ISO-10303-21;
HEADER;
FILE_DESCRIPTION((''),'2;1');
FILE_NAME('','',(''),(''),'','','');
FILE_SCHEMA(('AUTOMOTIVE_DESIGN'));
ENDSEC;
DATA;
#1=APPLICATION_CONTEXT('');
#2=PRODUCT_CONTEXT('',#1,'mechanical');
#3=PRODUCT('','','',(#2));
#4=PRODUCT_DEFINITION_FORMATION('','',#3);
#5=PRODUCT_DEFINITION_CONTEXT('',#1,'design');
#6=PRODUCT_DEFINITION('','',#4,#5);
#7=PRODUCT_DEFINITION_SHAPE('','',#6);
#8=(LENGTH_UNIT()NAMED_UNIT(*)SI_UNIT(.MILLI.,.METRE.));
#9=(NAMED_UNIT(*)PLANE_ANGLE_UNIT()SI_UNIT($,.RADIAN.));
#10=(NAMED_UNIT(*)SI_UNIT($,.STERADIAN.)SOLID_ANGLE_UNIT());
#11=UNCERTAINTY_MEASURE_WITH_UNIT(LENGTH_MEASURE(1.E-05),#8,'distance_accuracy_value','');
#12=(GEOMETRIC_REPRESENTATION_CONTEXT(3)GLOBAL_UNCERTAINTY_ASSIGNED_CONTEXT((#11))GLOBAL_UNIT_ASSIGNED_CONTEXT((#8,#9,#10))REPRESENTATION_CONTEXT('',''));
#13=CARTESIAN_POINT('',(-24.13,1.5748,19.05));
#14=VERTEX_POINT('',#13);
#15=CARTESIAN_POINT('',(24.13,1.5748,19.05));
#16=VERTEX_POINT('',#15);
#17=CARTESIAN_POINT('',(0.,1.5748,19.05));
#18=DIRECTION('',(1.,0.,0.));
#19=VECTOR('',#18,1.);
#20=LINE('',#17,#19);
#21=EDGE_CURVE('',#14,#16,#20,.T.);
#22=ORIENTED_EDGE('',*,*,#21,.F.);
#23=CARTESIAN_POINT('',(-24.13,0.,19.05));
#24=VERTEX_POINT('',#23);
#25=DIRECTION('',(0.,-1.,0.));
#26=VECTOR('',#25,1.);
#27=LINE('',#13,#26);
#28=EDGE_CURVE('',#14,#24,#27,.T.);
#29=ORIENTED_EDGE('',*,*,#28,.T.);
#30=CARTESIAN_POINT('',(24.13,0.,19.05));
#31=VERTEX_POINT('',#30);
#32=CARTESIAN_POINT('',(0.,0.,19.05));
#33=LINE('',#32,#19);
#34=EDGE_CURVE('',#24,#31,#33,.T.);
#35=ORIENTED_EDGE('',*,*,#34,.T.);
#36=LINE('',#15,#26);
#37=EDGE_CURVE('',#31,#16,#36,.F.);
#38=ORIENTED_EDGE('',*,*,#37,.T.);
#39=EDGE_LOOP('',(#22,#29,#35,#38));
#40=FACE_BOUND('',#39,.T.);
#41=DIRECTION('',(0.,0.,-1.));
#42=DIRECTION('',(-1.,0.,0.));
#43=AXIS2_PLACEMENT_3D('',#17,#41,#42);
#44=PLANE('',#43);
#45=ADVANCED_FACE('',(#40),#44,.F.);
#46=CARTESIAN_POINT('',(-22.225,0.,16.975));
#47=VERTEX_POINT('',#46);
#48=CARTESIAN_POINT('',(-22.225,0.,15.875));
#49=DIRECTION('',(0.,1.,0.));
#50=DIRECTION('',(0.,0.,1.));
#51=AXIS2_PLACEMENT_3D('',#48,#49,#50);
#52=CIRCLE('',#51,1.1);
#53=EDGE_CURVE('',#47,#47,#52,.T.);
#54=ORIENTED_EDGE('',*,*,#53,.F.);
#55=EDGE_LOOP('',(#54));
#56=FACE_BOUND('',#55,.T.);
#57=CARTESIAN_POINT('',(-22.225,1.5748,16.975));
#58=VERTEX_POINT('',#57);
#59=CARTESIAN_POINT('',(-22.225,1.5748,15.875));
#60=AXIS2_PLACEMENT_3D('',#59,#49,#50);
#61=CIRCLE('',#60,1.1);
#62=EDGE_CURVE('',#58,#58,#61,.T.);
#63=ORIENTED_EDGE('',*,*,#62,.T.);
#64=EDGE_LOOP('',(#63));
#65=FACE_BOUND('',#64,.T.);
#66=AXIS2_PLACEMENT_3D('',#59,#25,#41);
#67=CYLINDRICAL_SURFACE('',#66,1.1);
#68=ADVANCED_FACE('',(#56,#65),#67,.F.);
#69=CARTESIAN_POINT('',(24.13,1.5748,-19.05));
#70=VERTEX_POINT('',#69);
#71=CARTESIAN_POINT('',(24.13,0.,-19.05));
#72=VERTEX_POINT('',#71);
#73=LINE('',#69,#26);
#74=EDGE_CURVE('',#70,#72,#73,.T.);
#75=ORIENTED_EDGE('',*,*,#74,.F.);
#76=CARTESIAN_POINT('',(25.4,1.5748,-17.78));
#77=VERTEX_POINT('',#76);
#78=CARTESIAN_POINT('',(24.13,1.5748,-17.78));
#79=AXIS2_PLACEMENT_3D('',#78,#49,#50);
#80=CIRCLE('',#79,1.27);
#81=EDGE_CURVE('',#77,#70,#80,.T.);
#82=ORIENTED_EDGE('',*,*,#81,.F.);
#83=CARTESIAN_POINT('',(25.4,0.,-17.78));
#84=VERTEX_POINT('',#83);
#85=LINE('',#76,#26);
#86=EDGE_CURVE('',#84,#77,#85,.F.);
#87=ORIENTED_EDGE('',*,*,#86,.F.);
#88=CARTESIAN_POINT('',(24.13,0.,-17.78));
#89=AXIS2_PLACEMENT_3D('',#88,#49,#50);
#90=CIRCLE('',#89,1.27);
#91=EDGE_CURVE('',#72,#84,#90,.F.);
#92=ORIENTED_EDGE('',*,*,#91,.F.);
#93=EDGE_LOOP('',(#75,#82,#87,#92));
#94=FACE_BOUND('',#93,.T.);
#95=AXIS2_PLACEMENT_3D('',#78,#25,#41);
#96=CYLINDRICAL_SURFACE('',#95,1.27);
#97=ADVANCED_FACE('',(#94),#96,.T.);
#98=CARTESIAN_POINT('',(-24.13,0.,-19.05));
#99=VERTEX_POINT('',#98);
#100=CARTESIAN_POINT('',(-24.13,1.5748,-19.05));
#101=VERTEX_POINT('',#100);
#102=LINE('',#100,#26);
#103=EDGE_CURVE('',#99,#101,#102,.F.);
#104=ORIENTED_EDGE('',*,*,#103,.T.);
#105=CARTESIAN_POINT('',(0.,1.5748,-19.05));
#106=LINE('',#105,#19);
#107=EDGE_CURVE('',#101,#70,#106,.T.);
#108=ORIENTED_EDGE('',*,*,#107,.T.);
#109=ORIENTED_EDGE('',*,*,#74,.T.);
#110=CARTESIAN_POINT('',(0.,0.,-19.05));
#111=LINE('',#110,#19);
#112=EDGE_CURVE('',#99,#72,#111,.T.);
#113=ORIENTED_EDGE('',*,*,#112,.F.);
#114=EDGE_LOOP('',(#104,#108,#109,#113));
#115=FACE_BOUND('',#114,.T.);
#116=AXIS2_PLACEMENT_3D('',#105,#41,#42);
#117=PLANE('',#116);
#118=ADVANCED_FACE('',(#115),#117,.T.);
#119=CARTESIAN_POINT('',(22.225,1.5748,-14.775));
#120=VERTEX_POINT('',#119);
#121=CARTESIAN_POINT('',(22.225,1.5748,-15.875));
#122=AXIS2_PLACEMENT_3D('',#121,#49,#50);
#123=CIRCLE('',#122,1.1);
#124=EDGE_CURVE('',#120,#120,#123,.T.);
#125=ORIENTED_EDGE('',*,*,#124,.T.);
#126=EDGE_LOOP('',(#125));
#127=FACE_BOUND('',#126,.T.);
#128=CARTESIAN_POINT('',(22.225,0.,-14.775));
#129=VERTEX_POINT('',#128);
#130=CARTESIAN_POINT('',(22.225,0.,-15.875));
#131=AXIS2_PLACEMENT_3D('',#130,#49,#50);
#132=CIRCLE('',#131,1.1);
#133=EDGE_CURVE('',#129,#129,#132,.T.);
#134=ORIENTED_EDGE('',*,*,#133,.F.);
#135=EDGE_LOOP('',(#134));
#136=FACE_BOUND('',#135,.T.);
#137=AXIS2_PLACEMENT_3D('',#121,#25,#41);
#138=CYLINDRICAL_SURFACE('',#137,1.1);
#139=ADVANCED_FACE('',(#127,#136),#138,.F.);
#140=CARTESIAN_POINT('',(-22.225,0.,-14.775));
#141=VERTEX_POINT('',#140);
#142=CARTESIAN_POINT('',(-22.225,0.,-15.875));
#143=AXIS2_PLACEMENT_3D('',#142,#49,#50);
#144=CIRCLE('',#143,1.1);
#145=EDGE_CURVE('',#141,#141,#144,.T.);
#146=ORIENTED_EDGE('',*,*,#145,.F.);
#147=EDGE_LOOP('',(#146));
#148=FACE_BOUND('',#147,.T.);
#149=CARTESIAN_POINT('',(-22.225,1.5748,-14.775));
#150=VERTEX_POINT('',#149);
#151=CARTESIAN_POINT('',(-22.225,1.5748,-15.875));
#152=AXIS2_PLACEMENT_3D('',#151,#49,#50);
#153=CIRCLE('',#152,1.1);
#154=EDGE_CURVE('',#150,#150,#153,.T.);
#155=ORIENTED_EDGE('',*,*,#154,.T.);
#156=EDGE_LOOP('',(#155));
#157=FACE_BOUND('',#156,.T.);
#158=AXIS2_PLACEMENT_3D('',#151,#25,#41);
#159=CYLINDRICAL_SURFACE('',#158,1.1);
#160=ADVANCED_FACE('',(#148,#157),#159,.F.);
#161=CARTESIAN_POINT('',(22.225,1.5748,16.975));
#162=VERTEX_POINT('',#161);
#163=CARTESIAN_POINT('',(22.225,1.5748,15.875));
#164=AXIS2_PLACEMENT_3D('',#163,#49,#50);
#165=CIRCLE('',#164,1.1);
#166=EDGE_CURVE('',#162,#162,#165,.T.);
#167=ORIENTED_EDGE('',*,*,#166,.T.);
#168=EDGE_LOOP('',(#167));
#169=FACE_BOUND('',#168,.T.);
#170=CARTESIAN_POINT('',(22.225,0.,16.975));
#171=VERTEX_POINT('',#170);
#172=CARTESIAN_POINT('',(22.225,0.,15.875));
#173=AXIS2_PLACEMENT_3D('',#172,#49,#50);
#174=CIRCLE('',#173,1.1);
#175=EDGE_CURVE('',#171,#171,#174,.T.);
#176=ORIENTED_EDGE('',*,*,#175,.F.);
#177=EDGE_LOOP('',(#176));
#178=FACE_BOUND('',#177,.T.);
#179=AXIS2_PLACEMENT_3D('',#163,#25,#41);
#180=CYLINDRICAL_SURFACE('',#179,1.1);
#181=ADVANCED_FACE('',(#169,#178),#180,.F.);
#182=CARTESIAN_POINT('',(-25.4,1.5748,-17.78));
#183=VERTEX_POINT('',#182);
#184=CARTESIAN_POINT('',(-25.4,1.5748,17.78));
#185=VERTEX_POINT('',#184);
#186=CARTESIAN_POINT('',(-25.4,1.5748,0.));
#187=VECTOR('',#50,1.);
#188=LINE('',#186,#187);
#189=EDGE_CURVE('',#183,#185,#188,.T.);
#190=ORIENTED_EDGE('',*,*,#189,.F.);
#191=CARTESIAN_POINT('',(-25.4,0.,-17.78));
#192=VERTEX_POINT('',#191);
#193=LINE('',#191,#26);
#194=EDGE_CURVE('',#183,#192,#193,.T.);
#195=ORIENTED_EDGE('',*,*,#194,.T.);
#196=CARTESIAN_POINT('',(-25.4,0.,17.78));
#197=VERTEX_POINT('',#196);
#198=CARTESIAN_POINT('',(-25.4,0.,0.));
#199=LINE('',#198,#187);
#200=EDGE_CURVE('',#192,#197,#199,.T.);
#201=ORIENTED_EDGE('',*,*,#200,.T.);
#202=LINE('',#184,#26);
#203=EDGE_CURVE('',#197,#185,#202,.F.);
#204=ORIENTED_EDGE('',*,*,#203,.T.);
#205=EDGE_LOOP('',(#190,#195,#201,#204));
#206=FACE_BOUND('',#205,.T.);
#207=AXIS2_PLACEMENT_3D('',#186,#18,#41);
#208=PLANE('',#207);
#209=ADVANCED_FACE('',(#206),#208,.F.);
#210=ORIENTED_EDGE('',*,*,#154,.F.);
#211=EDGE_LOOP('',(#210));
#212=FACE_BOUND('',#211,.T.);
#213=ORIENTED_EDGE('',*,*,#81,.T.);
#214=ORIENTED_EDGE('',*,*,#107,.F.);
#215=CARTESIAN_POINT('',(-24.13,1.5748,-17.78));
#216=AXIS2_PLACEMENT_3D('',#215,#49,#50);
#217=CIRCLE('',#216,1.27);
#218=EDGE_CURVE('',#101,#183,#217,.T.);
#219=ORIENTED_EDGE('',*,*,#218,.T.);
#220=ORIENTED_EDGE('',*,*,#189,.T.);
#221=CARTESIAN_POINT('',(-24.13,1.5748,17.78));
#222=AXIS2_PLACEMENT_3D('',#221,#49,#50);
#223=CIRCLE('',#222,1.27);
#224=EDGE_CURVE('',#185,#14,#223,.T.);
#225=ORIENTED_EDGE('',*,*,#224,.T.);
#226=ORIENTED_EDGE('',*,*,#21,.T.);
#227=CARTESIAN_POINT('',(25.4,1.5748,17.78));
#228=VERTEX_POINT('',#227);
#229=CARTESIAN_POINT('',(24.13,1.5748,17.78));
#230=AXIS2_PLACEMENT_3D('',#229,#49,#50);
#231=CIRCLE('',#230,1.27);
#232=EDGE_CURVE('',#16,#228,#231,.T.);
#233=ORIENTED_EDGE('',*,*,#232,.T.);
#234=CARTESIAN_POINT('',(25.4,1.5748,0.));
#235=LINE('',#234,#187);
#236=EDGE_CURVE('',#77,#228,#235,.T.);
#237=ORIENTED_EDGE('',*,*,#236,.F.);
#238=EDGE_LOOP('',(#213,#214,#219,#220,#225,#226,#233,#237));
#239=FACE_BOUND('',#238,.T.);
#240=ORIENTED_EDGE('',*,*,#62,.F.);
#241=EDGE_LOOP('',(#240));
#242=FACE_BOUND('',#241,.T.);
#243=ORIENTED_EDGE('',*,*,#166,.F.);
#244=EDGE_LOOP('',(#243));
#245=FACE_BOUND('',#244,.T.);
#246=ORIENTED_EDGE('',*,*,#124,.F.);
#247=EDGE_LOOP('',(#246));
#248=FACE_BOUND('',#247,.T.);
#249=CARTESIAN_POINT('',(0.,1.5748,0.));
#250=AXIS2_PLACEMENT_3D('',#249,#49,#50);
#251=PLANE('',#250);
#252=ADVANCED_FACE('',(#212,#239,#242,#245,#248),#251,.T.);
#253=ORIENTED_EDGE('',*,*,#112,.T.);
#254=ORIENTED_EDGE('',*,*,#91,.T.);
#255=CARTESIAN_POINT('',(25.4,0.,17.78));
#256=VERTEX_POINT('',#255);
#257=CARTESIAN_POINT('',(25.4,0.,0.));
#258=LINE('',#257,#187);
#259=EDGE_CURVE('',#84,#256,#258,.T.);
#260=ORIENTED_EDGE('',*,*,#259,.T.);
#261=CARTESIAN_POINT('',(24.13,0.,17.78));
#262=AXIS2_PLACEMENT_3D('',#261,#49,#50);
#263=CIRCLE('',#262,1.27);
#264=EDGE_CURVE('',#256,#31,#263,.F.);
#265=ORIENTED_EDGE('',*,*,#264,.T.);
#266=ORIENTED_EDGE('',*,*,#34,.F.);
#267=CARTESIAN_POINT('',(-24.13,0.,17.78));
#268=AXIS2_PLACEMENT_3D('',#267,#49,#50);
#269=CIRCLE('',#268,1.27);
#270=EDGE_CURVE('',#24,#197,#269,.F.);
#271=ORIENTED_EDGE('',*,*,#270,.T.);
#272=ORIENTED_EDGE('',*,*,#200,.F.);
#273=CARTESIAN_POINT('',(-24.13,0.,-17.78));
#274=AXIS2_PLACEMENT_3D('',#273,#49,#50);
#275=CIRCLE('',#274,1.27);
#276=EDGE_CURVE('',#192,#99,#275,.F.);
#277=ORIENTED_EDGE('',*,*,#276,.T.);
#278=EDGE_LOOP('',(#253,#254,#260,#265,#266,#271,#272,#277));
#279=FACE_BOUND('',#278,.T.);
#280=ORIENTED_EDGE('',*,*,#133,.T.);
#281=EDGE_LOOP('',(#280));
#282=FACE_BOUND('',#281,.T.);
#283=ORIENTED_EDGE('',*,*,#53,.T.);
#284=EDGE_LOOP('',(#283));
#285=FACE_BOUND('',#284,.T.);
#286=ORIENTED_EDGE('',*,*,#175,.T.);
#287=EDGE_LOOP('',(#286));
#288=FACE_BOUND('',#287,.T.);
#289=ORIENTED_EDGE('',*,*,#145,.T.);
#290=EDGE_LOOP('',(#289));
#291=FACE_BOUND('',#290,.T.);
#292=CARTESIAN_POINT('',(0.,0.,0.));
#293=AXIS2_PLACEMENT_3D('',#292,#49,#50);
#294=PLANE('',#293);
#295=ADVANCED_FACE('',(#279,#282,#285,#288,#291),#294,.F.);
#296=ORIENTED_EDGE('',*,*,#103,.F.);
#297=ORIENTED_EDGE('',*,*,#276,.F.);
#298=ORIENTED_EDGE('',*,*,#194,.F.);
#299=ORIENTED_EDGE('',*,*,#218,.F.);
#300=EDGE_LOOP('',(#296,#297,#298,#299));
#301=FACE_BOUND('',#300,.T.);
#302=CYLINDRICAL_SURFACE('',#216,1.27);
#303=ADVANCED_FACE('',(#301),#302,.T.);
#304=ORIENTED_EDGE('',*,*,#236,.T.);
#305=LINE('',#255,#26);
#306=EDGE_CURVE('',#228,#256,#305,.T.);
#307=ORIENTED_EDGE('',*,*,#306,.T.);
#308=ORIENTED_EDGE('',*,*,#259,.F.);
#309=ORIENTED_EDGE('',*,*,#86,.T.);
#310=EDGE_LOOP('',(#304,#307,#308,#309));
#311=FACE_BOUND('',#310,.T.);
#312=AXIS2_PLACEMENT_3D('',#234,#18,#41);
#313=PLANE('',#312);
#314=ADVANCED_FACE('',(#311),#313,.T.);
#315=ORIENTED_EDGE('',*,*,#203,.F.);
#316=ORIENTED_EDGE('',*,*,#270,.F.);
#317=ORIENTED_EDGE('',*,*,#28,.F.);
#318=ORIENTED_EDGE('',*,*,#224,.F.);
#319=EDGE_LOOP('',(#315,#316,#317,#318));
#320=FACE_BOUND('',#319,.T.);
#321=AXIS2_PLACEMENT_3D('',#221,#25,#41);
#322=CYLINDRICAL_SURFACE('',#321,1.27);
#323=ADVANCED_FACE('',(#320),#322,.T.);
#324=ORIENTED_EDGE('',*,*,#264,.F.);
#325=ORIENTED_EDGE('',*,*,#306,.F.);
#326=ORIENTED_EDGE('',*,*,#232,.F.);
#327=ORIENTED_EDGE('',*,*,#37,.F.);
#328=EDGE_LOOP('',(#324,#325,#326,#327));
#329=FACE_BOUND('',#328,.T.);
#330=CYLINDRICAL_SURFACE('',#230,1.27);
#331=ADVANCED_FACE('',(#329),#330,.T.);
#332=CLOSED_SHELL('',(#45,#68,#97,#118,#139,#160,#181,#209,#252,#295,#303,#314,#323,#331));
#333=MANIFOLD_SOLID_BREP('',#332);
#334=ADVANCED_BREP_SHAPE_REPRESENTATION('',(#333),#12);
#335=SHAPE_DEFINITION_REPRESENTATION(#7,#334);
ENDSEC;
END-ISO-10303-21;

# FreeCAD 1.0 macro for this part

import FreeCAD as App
import Part
import Sketcher

V = App.Vector
Q = App.Units.Quantity


def edges_at(feature, points):
    """Names of the edges that pass closest to the given points."""
    edges = feature.Shape.Edges
    near = lambda p: min(range(len(edges)), key=lambda i: edges[i].distToShape(Part.Vertex(*p))[0])
    return sorted({f"Edge{near(p) + 1}" for p in points})


def add_polygon(sketch, points):
    """Adds a closed chain of lines whose ends are joined by coincident constraints."""
    first, n = sketch.GeometryCount, len(points)
    for a, b in zip(points, points[1:] + points[:1]):
        sketch.addGeometry(Part.LineSegment(App.Vector(*a, 0), App.Vector(*b, 0)), False)
    for i in range(n):
        sketch.addConstraint(Sketcher.Constraint("Coincident", first + i, 2, first + (i + 1) % n, 1))

doc = App.newDocument("Part")
params = doc.addObject("Spreadsheet::Sheet", "Params")
for row, (alias, value) in enumerate([
    ("sketch1_width", "2 in"),
    ("sketch1_height", "1.5 in"),
    ("pad1_length", "0.062 in"),
    ("fillet_radius", "0.05 in"),
], start=1):
    params.set(f"A{row}", alias)
    params.set(f"B{row}", "=" + value)
    params.setAlias(f"B{row}", alias)

body = doc.addObject("PartDesign::Body", "Body")

sketch1 = body.newObject("Sketcher::SketchObject", "Sketch")
sketch1.AttachmentSupport = (doc.getObject("XZ_Plane"), [""])
sketch1.MapMode = "FlatFace"
add_polygon(sketch1, [(-25.4, -19.1), (-25.4, 19.1), (25.4, 19.1), (25.4, -19.1)])
sketch1.addGeometry(Part.Circle(V(-22.2, 15.9, 0), V(0, 0, 1), 1.1), False)
sketch1.addGeometry(Part.Circle(V(22.2, 15.9, 0), V(0, 0, 1), 1.1), False)
sketch1.addGeometry(Part.Circle(V(-22.2, -15.9, 0), V(0, 0, 1), 1.1), False)
sketch1.addGeometry(Part.Circle(V(22.2, -15.9, 0), V(0, 0, 1), 1.1), False)
sketch1.addConstraint([
    Sketcher.Constraint("Vertical", 0),
    Sketcher.Constraint("Horizontal", 1),
    Sketcher.Constraint("Vertical", 2),
    Sketcher.Constraint("Horizontal", 3),
    Sketcher.Constraint("Equal", 4, 5),
    Sketcher.Constraint("Equal", 5, 6),
    Sketcher.Constraint("Equal", 6, 7),
    Sketcher.Constraint("Symmetric", 5, 3, 6, 3, -1, 1),
    Sketcher.Constraint("Symmetric", 4, 3, 7, 3, -1, 1),
    Sketcher.Constraint("Symmetric", 0, 2, 2, 2, -1, 1),
    Sketcher.Constraint("Symmetric", 4, 3, 5, 3, -2),
    Sketcher.Constraint("DistanceX", 1, 1, 1, 2, Q("2 in")),
    Sketcher.Constraint("DistanceY", 0, 1, 0, 2, Q("1.5 in")),
    Sketcher.Constraint("Diameter", 4, 2.2),
    Sketcher.Constraint("DistanceX", 4, 3, 5, 3, Q("1.75 in")),
    Sketcher.Constraint("DistanceY", 6, 3, 4, 3, Q("1.25 in")),
])
sketch1.setExpression("Constraints[15]", "Params.sketch1_width")
sketch1.setExpression("Constraints[16]", "Params.sketch1_height")
pad1 = body.newObject("PartDesign::Pad", "Pad")
pad1.Profile = sketch1
pad1.setExpression("Length", "Params.pad1_length")
pad1.Reversed = True
doc.recompute()

fillet = body.newObject("PartDesign::Fillet", "Fillet")
fillet.Base = (pad1, edges_at(pad1, [
    (25.4, 0.787, 19.05),
    (-25.4, 0.787, 19.05),
    (-25.4, 0.787, -19.05),
    (25.4, 0.787, -19.05),
]))
fillet.setExpression("Radius", "Params.fillet_radius")

doc.recompute()
